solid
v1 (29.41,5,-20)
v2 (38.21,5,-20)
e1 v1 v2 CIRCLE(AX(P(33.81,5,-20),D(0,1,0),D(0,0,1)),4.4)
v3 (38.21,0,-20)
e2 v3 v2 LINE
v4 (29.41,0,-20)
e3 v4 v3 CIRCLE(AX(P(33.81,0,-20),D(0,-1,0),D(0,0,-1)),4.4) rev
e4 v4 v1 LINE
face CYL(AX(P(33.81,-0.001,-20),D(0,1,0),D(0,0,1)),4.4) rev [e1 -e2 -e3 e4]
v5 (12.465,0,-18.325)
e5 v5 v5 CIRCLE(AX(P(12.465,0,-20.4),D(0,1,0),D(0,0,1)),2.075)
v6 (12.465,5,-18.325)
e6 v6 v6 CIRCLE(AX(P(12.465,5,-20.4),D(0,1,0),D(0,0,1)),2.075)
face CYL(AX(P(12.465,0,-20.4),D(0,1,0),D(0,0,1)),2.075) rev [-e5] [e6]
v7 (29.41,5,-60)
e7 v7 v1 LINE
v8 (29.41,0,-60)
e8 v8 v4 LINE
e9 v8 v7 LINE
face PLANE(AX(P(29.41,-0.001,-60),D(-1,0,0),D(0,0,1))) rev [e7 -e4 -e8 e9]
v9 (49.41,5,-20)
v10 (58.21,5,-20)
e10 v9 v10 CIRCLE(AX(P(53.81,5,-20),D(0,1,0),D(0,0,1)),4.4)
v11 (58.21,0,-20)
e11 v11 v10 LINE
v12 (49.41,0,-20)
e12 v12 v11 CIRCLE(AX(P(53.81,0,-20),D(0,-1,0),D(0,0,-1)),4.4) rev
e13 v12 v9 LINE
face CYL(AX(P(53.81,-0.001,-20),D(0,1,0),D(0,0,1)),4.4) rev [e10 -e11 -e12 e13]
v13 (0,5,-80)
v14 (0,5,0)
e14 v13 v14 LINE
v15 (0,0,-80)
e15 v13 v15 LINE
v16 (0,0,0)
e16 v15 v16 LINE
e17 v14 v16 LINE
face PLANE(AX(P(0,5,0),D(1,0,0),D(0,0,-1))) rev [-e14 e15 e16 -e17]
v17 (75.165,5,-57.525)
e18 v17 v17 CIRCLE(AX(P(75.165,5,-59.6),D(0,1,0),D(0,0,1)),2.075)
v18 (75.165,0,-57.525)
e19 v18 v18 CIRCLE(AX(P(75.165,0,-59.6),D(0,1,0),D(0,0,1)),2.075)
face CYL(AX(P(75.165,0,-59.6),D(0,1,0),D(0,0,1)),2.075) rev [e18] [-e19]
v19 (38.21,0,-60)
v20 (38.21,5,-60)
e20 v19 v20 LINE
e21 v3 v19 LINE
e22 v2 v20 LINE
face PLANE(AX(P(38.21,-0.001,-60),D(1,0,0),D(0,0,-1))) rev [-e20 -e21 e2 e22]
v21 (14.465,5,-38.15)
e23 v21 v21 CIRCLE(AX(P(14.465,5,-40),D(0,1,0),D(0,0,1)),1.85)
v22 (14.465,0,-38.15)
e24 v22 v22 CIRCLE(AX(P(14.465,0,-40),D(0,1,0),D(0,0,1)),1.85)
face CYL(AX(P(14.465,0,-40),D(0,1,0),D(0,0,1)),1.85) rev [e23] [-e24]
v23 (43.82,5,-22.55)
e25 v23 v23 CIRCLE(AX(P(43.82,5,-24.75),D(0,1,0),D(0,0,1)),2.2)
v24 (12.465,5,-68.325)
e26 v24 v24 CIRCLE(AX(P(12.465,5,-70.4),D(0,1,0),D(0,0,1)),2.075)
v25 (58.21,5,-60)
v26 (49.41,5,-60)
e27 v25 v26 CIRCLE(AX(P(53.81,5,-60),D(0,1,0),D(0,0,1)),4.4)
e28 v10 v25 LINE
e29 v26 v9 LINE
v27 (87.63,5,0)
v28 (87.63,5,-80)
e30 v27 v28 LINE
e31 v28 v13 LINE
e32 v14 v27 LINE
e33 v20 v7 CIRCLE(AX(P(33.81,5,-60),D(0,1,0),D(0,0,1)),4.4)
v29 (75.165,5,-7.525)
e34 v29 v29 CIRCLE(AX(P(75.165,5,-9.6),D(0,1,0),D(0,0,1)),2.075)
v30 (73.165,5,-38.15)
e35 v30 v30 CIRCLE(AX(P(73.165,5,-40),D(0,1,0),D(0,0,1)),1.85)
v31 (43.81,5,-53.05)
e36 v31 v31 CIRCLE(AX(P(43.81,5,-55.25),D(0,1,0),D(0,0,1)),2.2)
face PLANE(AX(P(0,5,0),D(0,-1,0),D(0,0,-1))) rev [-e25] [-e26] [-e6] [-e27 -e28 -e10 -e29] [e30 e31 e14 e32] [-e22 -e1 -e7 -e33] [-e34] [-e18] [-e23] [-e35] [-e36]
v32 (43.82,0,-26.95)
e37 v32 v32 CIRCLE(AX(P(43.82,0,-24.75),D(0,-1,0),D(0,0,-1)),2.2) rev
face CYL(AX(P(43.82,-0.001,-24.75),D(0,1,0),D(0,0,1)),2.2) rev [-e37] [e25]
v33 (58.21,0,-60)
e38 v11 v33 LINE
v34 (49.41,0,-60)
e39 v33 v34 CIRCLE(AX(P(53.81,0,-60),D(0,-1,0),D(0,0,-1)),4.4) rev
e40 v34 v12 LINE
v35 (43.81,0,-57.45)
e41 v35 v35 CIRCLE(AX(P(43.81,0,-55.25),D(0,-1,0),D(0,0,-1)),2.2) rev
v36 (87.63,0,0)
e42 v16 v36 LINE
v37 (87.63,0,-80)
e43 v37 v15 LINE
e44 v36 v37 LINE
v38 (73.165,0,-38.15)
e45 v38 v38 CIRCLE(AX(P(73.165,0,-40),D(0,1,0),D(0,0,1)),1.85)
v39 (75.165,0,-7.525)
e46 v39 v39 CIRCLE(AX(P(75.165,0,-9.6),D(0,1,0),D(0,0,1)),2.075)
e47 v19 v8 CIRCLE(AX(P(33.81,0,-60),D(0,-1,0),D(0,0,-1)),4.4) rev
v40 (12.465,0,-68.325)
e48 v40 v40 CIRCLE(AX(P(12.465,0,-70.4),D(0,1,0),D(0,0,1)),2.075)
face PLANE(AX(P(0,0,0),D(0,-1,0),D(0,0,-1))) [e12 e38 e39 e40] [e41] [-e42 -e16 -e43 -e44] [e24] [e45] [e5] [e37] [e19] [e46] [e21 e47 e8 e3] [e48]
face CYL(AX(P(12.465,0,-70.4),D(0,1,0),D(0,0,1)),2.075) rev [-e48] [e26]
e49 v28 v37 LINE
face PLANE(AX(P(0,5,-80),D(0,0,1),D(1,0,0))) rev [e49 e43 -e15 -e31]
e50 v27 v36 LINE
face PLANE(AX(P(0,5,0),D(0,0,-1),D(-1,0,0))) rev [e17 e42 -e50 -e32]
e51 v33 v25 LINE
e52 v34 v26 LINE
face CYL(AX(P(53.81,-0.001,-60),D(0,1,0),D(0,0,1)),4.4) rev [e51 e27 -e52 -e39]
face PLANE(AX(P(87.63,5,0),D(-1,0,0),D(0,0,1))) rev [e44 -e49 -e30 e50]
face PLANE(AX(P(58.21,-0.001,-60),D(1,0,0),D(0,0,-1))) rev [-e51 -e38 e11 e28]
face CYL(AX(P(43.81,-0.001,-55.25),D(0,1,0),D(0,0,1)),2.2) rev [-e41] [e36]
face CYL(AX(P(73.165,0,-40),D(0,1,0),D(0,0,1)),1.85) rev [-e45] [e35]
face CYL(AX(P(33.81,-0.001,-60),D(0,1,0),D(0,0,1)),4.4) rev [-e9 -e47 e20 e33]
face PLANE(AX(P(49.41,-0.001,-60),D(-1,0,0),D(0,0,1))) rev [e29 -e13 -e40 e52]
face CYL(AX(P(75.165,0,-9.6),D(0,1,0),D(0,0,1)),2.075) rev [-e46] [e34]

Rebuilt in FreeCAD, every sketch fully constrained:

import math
import FreeCAD as App
import Part
import Sketcher
Q = App.Units.Quantity


def add_polygon(sketch, points):
    """Adds a closed chain of lines whose ends are joined by coincident constraints."""
    first, n = sketch.GeometryCount, len(points)
    for a, b in zip(points, points[1:] + points[:1]):
        sketch.addGeometry(Part.LineSegment(App.Vector(*a, 0), App.Vector(*b, 0)), False)
    for i in range(n):
        sketch.addConstraint(Sketcher.Constraint("Coincident", first + i, 2, first + (i + 1) % n, 1))

doc = App.newDocument("Part")
params = doc.addObject("Spreadsheet::Sheet", "Params")
for row, (alias, value) in enumerate([
    ("sketch1_height", "80 mm"),
    ("sketch1_width", "87.63 mm"),
    ("pad1_length", "5 mm"),
    ("sketch2_diameter", "3.7 mm"),
    ("sketch2_diameter2", "4.15 mm"),
    ("sketch3_diameter", "4.4 mm"),
    ("sketch4_diameter", "4.4 mm"),
    ("sketch5_radius", "4.4 mm"),
    ("sketch5_height", "40 mm"),
    ("sketch6_radius", "4.4 mm"),
    ("sketch6_height", "40 mm"),
], start=1):
    params.set(f"A{row}", alias)
    params.set(f"B{row}", "=" + value)
    params.setAlias(f"B{row}", alias)

body = doc.addObject("PartDesign::Body", "Body")

# Sketch on XZ plane
sketch1 = doc.addObject("Sketcher::SketchObject", "Sketch")
body.addObject(sketch1)
sketch1.AttachmentSupport = (doc.XZ_Plane, [""])
sketch1.MapMode = "FlatFace"
add_polygon(sketch1, [(0, -80), (0, 0), (87.63, 0), (87.63, -80)])  # lines 0-3
sketch1.addConstraint([
    Sketcher.Constraint("Vertical", 0),
    Sketcher.Constraint("Horizontal", 1),
    Sketcher.Constraint("Vertical", 2),
    Sketcher.Constraint("Horizontal", 3),
    Sketcher.Constraint("Coincident", 0, 2, -1, 1),
    Sketcher.Constraint("DistanceY", 0, 1, 0, 2, Q("80 mm")),
    Sketcher.Constraint("DistanceX", 1, 1, 1, 2, Q("87.63 mm")),
])
sketch1.setExpression("Constraints[9]", "Params.sketch1_height")
sketch1.setExpression("Constraints[10]", "Params.sketch1_width")
pad1 = doc.addObject("PartDesign::Pad", "Pad")
body.addObject(pad1)
pad1.Profile = sketch1
pad1.setExpression("Length", "Params.pad1_length")
pad1.Reversed = True

# Sketch on XZ plane
sketch2 = doc.addObject("Sketcher::SketchObject", "Sketch001")
body.addObject(sketch2)
sketch2.AttachmentSupport = (doc.XZ_Plane, [""])
sketch2.MapMode = "FlatFace"
sketch2.AttachmentOffset = App.Placement(App.Vector(0, 0, -5), App.Rotation())
sketch2.addGeometry([
    Part.Circle(App.Vector(12.465, -70.4, 0), App.Vector(0, 0, 1), 2.075),  # 0
    Part.Circle(App.Vector(12.465, -20.4, 0), App.Vector(0, 0, 1), 2.075),  # 1
    Part.Circle(App.Vector(14.465, -40, 0), App.Vector(0, 0, 1), 1.85),  # 2
    Part.Circle(App.Vector(73.165, -40, 0), App.Vector(0, 0, 1), 1.85),  # 3
    Part.Circle(App.Vector(75.165, -9.6, 0), App.Vector(0, 0, 1), 2.075),  # 4
    Part.Circle(App.Vector(75.165, -59.6, 0), App.Vector(0, 0, 1), 2.075),  # 5
], False)
sketch2.addConstraint([
    Sketcher.Constraint("Equal", 0, 1),
    Sketcher.Constraint("Equal", 2, 3),
    Sketcher.Constraint("Equal", 1, 4),
    Sketcher.Constraint("Equal", 4, 5),
    Sketcher.Constraint("Horizontal", 2, 3, 3, 3),
    Sketcher.Constraint("Vertical", 0, 3, 1, 3),
    Sketcher.Constraint("Vertical", 4, 3, 5, 3),
    Sketcher.Constraint("Diameter", 2, Q("3.7 mm")),
    Sketcher.Constraint("Diameter", 0, Q("4.15 mm")),
    Sketcher.Constraint("DistanceY", 2, 3, -1, 1, Q("40 mm")),
    Sketcher.Constraint("DistanceY", 0, 3, 1, 3, Q("50 mm")),
    Sketcher.Constraint("DistanceX", 1, 3, 2, 3, Q("2 mm")),
    Sketcher.Constraint("DistanceX", 3, 3, 4, 3, Q("2 mm")),
    Sketcher.Constraint("DistanceY", 5, 3, 4, 3, Q("50 mm")),
    Sketcher.Constraint("DistanceY", 0, 3, -1, 1, Q("70.4 mm")),
    Sketcher.Constraint("DistanceY", 4, 3, -1, 1, Q("9.6 mm")),
    Sketcher.Constraint("DistanceX", 2, 3, 3, 3, Q("58.7 mm")),
    Sketcher.Constraint("DistanceX", -1, 1, 0, 3, Q("12.465 mm")),
])
sketch2.setExpression("Constraints[7]", "Params.sketch2_diameter")
sketch2.setExpression("Constraints[8]", "Params.sketch2_diameter2")
pocket1 = doc.addObject("PartDesign::Pocket", "Pocket")
body.addObject(pocket1)
pocket1.Profile = sketch2
pocket1.Type = "ThroughAll"
pocket1.Reversed = True

# Sketch on XZ plane
sketch3 = doc.addObject("Sketcher::SketchObject", "Sketch002")
body.addObject(sketch3)
sketch3.AttachmentSupport = (doc.XZ_Plane, [""])
sketch3.MapMode = "FlatFace"
sketch3.AttachmentOffset = App.Placement(App.Vector(0, 0, -5), App.Rotation())
sketch3.addGeometry(Part.Circle(App.Vector(43.81, -55.25, 0), App.Vector(0, 0, 1), 2.2), False)
sketch3.addConstraint([
    Sketcher.Constraint("Diameter", 0, Q("4.4 mm")),
    Sketcher.Constraint("DistanceX", -1, 1, 0, 3, Q("43.81 mm")),
    Sketcher.Constraint("DistanceY", 0, 3, -1, 1, Q("55.25 mm")),
])
sketch3.setExpression("Constraints[0]", "Params.sketch3_diameter")
pocket2 = doc.addObject("PartDesign::Pocket", "Pocket001")
body.addObject(pocket2)
pocket2.Profile = sketch3
pocket2.Type = "UpToFirst"
pocket2.Reversed = True

# Sketch on XZ plane
sketch4 = doc.addObject("Sketcher::SketchObject", "Sketch003")
body.addObject(sketch4)
sketch4.AttachmentSupport = (doc.XZ_Plane, [""])
sketch4.MapMode = "FlatFace"
sketch4.AttachmentOffset = App.Placement(App.Vector(0, 0, -5), App.Rotation())
sketch4.addGeometry(Part.Circle(App.Vector(43.82, -24.75, 0), App.Vector(0, 0, 1), 2.2), False)
sketch4.addConstraint([
    Sketcher.Constraint("Diameter", 0, Q("4.4 mm")),
    Sketcher.Constraint("DistanceX", -1, 1, 0, 3, Q("43.82 mm")),
    Sketcher.Constraint("DistanceY", 0, 3, -1, 1, Q("24.75 mm")),
])
sketch4.setExpression("Constraints[0]", "Params.sketch4_diameter")
pocket3 = doc.addObject("PartDesign::Pocket", "Pocket002")
body.addObject(pocket3)
pocket3.Profile = sketch4
pocket3.Type = "UpToFirst"
pocket3.Reversed = True

# Sketch on XZ plane
sketch5 = doc.addObject("Sketcher::SketchObject", "Sketch004")
body.addObject(sketch5)
sketch5.AttachmentSupport = (doc.XZ_Plane, [""])
sketch5.MapMode = "FlatFace"
sketch5.AttachmentOffset = App.Placement(App.Vector(0, 0, -5), App.Rotation())
sketch5.addGeometry([
    Part.LineSegment(App.Vector(38.21, -20, 0), App.Vector(38.21, -60, 0)),
    Part.ArcOfCircle(Part.Circle(App.Vector(33.81, -60, 0), App.Vector(0, 0, 1), 4.4), math.radians(180), math.radians(360)),
    Part.LineSegment(App.Vector(29.41, -60, 0), App.Vector(29.41, -20, 0)),
    Part.ArcOfCircle(Part.Circle(App.Vector(33.81, -20, 0), App.Vector(0, 0, 1), 4.4), math.radians(0), math.radians(180)),
], False)
sketch5.addConstraint([
    Sketcher.Constraint("Tangent", 0, 2, 1, 2),
    Sketcher.Constraint("Tangent", 1, 1, 2, 1),
    Sketcher.Constraint("Tangent", 2, 2, 3, 2),
    Sketcher.Constraint("Tangent", 3, 1, 0, 1),
    Sketcher.Constraint("Vertical", 0),
    Sketcher.Constraint("Vertical", 2),
    Sketcher.Constraint("Radius", 1, Q("4.4 mm")),
    Sketcher.Constraint("DistanceY", 0, 2, 0, 1, Q("40 mm")),
    Sketcher.Constraint("DistanceY", 1, 3, -1, 1, Q("60 mm")),
    Sketcher.Constraint("DistanceX", -1, 1, 1, 3, Q("33.81 mm")),
])
sketch5.setExpression("Constraints[6]", "Params.sketch5_radius")
sketch5.setExpression("Constraints[7]", "Params.sketch5_height")
pocket4 = doc.addObject("PartDesign::Pocket", "Pocket003")
body.addObject(pocket4)
pocket4.Profile = sketch5
pocket4.Type = "UpToFirst"
pocket4.Reversed = True

# Sketch on XZ plane
sketch6 = doc.addObject("Sketcher::SketchObject", "Sketch005")
body.addObject(sketch6)
sketch6.AttachmentSupport = (doc.XZ_Plane, [""])
sketch6.MapMode = "FlatFace"
sketch6.AttachmentOffset = App.Placement(App.Vector(0, 0, -5), App.Rotation())
sketch6.addGeometry([
    Part.LineSegment(App.Vector(58.21, -20, 0), App.Vector(58.21, -60, 0)),
    Part.ArcOfCircle(Part.Circle(App.Vector(53.81, -60, 0), App.Vector(0, 0, 1), 4.4), math.radians(180), math.radians(360)),
    Part.LineSegment(App.Vector(49.41, -60, 0), App.Vector(49.41, -20, 0)),
    Part.ArcOfCircle(Part.Circle(App.Vector(53.81, -20, 0), App.Vector(0, 0, 1), 4.4), math.radians(0), math.radians(180)),
], False)
sketch6.addConstraint([
    Sketcher.Constraint("Tangent", 0, 2, 1, 2),
    Sketcher.Constraint("Tangent", 1, 1, 2, 1),
    Sketcher.Constraint("Tangent", 2, 2, 3, 2),
    Sketcher.Constraint("Tangent", 3, 1, 0, 1),
    Sketcher.Constraint("Vertical", 0),
    Sketcher.Constraint("Vertical", 2),
    Sketcher.Constraint("Radius", 1, Q("4.4 mm")),
    Sketcher.Constraint("DistanceY", 0, 2, 0, 1, Q("40 mm")),
    Sketcher.Constraint("DistanceY", 1, 3, -1, 1, Q("60 mm")),
    Sketcher.Constraint("DistanceX", -1, 1, 1, 3, Q("53.81 mm")),
])
sketch6.setExpression("Constraints[6]", "Params.sketch6_radius")
sketch6.setExpression("Constraints[7]", "Params.sketch6_height")
pocket5 = doc.addObject("PartDesign::Pocket", "Pocket004")
body.addObject(pocket5)
pocket5.Profile = sketch6
pocket5.Type = "UpToFirst"
pocket5.Reversed = True

doc.recompute()
